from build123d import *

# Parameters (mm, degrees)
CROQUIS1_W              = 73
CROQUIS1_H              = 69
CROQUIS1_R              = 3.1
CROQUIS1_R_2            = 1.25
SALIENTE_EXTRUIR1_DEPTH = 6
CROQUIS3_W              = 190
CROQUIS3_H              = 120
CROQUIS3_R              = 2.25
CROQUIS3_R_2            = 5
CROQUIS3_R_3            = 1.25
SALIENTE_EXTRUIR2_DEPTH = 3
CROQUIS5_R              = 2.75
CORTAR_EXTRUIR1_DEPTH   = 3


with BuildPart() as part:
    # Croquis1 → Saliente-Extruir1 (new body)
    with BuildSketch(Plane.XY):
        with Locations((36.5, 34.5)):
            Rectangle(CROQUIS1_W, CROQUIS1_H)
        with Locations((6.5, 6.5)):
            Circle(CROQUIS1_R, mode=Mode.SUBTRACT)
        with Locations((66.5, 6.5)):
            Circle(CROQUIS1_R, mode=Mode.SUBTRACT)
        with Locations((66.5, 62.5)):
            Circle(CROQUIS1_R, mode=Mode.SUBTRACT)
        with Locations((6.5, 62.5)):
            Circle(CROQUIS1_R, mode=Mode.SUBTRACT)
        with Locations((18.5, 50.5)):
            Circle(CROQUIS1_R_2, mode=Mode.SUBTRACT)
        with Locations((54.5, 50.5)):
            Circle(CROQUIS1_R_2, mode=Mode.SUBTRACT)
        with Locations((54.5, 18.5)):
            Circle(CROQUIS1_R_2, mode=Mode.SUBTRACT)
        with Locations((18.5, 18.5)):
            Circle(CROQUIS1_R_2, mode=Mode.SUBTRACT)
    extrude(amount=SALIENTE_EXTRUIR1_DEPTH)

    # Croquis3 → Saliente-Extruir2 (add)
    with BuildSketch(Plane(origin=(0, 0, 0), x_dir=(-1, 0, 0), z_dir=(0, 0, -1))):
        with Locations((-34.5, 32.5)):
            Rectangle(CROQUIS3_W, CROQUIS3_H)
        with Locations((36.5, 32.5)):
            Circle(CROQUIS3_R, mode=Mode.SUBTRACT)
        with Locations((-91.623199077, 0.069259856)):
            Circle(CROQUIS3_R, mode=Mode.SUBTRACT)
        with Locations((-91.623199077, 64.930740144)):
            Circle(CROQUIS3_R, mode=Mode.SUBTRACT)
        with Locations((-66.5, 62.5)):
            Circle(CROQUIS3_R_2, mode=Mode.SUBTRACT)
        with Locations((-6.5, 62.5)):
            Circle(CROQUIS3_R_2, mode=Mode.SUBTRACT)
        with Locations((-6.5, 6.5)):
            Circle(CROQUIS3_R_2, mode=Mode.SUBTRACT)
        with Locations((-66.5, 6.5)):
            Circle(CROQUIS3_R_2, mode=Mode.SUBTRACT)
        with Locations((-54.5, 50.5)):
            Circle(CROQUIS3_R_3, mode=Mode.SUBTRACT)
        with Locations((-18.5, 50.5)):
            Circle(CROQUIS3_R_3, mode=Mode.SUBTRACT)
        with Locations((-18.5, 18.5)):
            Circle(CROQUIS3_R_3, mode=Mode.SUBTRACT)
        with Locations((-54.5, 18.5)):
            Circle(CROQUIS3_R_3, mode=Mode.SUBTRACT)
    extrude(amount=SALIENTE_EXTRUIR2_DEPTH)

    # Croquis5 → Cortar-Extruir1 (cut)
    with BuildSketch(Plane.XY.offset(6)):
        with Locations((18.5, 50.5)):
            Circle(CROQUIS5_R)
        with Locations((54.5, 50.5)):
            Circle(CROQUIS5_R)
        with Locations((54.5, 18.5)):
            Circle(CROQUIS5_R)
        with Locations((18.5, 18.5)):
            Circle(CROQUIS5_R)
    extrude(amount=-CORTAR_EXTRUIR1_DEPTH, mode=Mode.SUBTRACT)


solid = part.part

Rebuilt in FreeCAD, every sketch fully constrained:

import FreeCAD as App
import Part
import Sketcher


def add_polygon(sketch, points):
    """Adds a closed chain of lines whose ends are joined by coincident constraints."""
    first, n = sketch.GeometryCount, len(points)
    for a, b in zip(points, points[1:] + points[:1]):
        sketch.addGeometry(Part.LineSegment(App.Vector(*a, 0), App.Vector(*b, 0)), False)
    for i in range(n):
        sketch.addConstraint(Sketcher.Constraint("Coincident", first + i, 2, first + (i + 1) % n, 1))

doc = App.newDocument("Part")
body = doc.addObject("PartDesign::Body", "Body")

# Sketch on XY plane
sketch1 = body.newObject("Sketcher::SketchObject", "Sketch")
sketch1.AttachmentSupport = (doc.getObject("XY_Plane"), [""])
sketch1.MapMode = "FlatFace"
add_polygon(sketch1, [(0, 69), (0, 0), (73, 0), (73, 69)])  # lines 0-3
sketch1.addGeometry(Part.Circle(App.Vector(6.5, 6.5, 0), App.Vector(0, 0, 1), 3.1), False)  # 4
sketch1.addGeometry(Part.Circle(App.Vector(18.5, 18.5, 0), App.Vector(0, 0, 1), 1.2), False)  # 5
sketch1.addGeometry(Part.Circle(App.Vector(66.5, 6.5, 0), App.Vector(0, 0, 1), 3.1), False)  # 6
sketch1.addGeometry(Part.Circle(App.Vector(54.5, 18.5, 0), App.Vector(0, 0, 1), 1.2), False)  # 7
sketch1.addGeometry(Part.Circle(App.Vector(18.5, 50.5, 0), App.Vector(0, 0, 1), 1.2), False)  # 8
sketch1.addGeometry(Part.Circle(App.Vector(6.5, 62.5, 0), App.Vector(0, 0, 1), 3.1), False)  # 9
sketch1.addGeometry(Part.Circle(App.Vector(54.5, 50.5, 0), App.Vector(0, 0, 1), 1.2), False)  # 10
sketch1.addGeometry(Part.Circle(App.Vector(66.5, 62.5, 0), App.Vector(0, 0, 1), 3.1), False)  # 11
sketch1.addConstraint(Sketcher.Constraint("Vertical", 0))
sketch1.addConstraint(Sketcher.Constraint("Horizontal", 1))
sketch1.addConstraint(Sketcher.Constraint("Vertical", 2))
sketch1.addConstraint(Sketcher.Constraint("Horizontal", 3))
sketch1.addConstraint(Sketcher.Constraint("Coincident", 0, 2, -1, 1))
sketch1.addConstraint(Sketcher.Constraint("Equal", 4, 6))
sketch1.addConstraint(Sketcher.Constraint("Equal", 5, 7))
sketch1.addConstraint(Sketcher.Constraint("Equal", 7, 8))
sketch1.addConstraint(Sketcher.Constraint("Equal", 6, 9))
sketch1.addConstraint(Sketcher.Constraint("Equal", 8, 10))
sketch1.addConstraint(Sketcher.Constraint("Equal", 9, 11))
sketch1.addConstraint(Sketcher.Constraint("Horizontal", 4, 3, 6, 3))
sketch1.addConstraint(Sketcher.Constraint("Horizontal", 5, 3, 7, 3))
sketch1.addConstraint(Sketcher.Constraint("Horizontal", 8, 3, 10, 3))
sketch1.addConstraint(Sketcher.Constraint("Horizontal", 9, 3, 11, 3))
sketch1.addConstraint(Sketcher.Constraint("Vertical", 5, 3, 8, 3))
sketch1.addConstraint(Sketcher.Constraint("Vertical", 4, 3, 9, 3))
sketch1.addConstraint(Sketcher.Constraint("Vertical", 7, 3, 10, 3))
sketch1.addConstraint(Sketcher.Constraint("Vertical", 6, 3, 11, 3))
sketch1.addConstraint(Sketcher.Constraint("Diameter", 4, 6.2))
sketch1.addConstraint(Sketcher.Constraint("Diameter", 5, 2.5))
sketch1.addConstraint(Sketcher.Constraint("DistanceX", 1, 1, 1, 2, 73.0))
sketch1.addConstraint(Sketcher.Constraint("DistanceY", 0, 2, 0, 1, 69.0))
sketch1.addConstraint(Sketcher.Constraint("DistanceX", 4, 3, 5, 3, 12.0))
sketch1.addConstraint(Sketcher.Constraint("DistanceY", 4, 3, 5, 3, 12.0))
sketch1.addConstraint(Sketcher.Constraint("DistanceX", 5, 3, 6, 3, 48.0))
sketch1.addConstraint(Sketcher.Constraint("DistanceX", 7, 3, 6, 3, 12.0))
sketch1.addConstraint(Sketcher.Constraint("DistanceY", 5, 3, 8, 3, 32.0))
sketch1.addConstraint(Sketcher.Constraint("DistanceY", 8, 3, 9, 3, 12.0))
sketch1.addConstraint(Sketcher.Constraint("DistanceX", -1, 1, 4, 3, 6.5))
sketch1.addConstraint(Sketcher.Constraint("DistanceY", -1, 1, 4, 3, 6.5))
pad1 = body.newObject("PartDesign::Pad", "Pad")
pad1.Profile = sketch1
pad1.Length = 6

# Sketch on XY plane
sketch2 = body.newObject("Sketcher::SketchObject", "Sketch001")
sketch2.AttachmentSupport = (doc.getObject("XY_Plane"), [""])
sketch2.MapMode = "FlatFace"
add_polygon(sketch2, [(129.5, 92.5), (129.5, -27.5), (-60.5, -27.5), (-60.5, 92.5)])  # lines 0-3
sketch2.addGeometry(Part.Circle(App.Vector(91.6, 0.1, 0), App.Vector(0, 0, 1), 2.2), False)  # 4
sketch2.addGeometry(Part.Circle(App.Vector(66.5, 6.5, 0), App.Vector(0, 0, 1), 5), False)  # 5
sketch2.addGeometry(Part.Circle(App.Vector(54.5, 18.5, 0), App.Vector(0, 0, 1), 1.2), False)  # 6
sketch2.addGeometry(Part.Circle(App.Vector(6.5, 6.5, 0), App.Vector(0, 0, 1), 5), False)  # 7
sketch2.addGeometry(Part.Circle(App.Vector(18.5, 18.5, 0), App.Vector(0, 0, 1), 1.2), False)  # 8
sketch2.addGeometry(Part.Circle(App.Vector(-36.5, 32.5, 0), App.Vector(0, 0, 1), 2.2), False)  # 9
sketch2.addGeometry(Part.Circle(App.Vector(91.6, 64.9, 0), App.Vector(0, 0, 1), 2.2), False)  # 10
sketch2.addGeometry(Part.Circle(App.Vector(66.5, 62.5, 0), App.Vector(0, 0, 1), 5), False)  # 11
sketch2.addGeometry(Part.Circle(App.Vector(54.5, 50.5, 0), App.Vector(0, 0, 1), 1.2), False)  # 12
sketch2.addGeometry(Part.Circle(App.Vector(18.5, 50.5, 0), App.Vector(0, 0, 1), 1.2), False)  # 13
sketch2.addGeometry(Part.Circle(App.Vector(6.5, 62.5, 0), App.Vector(0, 0, 1), 5), False)  # 14
sketch2.addConstraint(Sketcher.Constraint("Vertical", 0))
sketch2.addConstraint(Sketcher.Constraint("Horizontal", 1))
sketch2.addConstraint(Sketcher.Constraint("Vertical", 2))
sketch2.addConstraint(Sketcher.Constraint("Horizontal", 3))
sketch2.addConstraint(Sketcher.Constraint("Equal", 5, 7))
sketch2.addConstraint(Sketcher.Constraint("Equal", 6, 8))
sketch2.addConstraint(Sketcher.Constraint("Equal", 4, 9))
sketch2.addConstraint(Sketcher.Constraint("Equal", 9, 10))
sketch2.addConstraint(Sketcher.Constraint("Equal", 7, 11))
sketch2.addConstraint(Sketcher.Constraint("Equal", 8, 12))
sketch2.addConstraint(Sketcher.Constraint("Equal", 12, 13))
sketch2.addConstraint(Sketcher.Constraint("Equal", 11, 14))
sketch2.addConstraint(Sketcher.Constraint("Horizontal", 5, 3, 7, 3))
sketch2.addConstraint(Sketcher.Constraint("Horizontal", 6, 3, 8, 3))
sketch2.addConstraint(Sketcher.Constraint("Horizontal", 12, 3, 13, 3))
sketch2.addConstraint(Sketcher.Constraint("Horizontal", 11, 3, 14, 3))
sketch2.addConstraint(Sketcher.Constraint("Vertical", 4, 3, 10, 3))
sketch2.addConstraint(Sketcher.Constraint("Vertical", 5, 3, 11, 3))
sketch2.addConstraint(Sketcher.Constraint("Vertical", 6, 3, 12, 3))
sketch2.addConstraint(Sketcher.Constraint("Vertical", 8, 3, 13, 3))
sketch2.addConstraint(Sketcher.Constraint("Vertical", 7, 3, 14, 3))
sketch2.addConstraint(Sketcher.Constraint("Diameter", 5, 10.0))
sketch2.addConstraint(Sketcher.Constraint("Diameter", 4, 4.5))
sketch2.addConstraint(Sketcher.Constraint("Diameter", 6, 2.5))
sketch2.addConstraint(Sketcher.Constraint("DistanceX", 1, 2, 1, 1, 190.0))
sketch2.addConstraint(Sketcher.Constraint("DistanceY", 0, 2, 0, 1, 120.0))
sketch2.addConstraint(Sketcher.Constraint("DistanceX", 6, 3, 5, 3, 12.0))
sketch2.addConstraint(Sketcher.Constraint("DistanceY", 5, 3, 6, 3, 12.0))
sketch2.addConstraint(Sketcher.Constraint("DistanceX", 7, 3, 6, 3, 48.0))
sketch2.addConstraint(Sketcher.Constraint("DistanceX", 7, 3, 8, 3, 12.0))
sketch2.addConstraint(Sketcher.Constraint("DistanceX", 9, 3, 7, 3, 43.0))
sketch2.addConstraint(Sketcher.Constraint("DistanceY", 7, 3, 9, 3, 26.0))
sketch2.addConstraint(Sketcher.Constraint("DistanceY", 6, 3, 11, 3, 44.0))
sketch2.addConstraint(Sketcher.Constraint("DistanceY", 12, 3, 11, 3, 12.0))
sketch2.addConstraint(Sketcher.Constraint("DistanceX", 5, 3, 0, 2, 63.0))
sketch2.addConstraint(Sketcher.Constraint("DistanceY", 0, 2, 5, 3, 34.0))
sketch2.addConstraint(Sketcher.Constraint("DistanceX", -1, 1, 5, 3, 66.5))
sketch2.addConstraint(Sketcher.Constraint("DistanceY", -1, 1, 5, 3, 6.5))
sketch2.addConstraint(Sketcher.Constraint("DistanceX", -1, 1, 4, 3, 91.623199))
sketch2.addConstraint(Sketcher.Constraint("DistanceY", -1, 1, 4, 3, 0.06926))
sketch2.addConstraint(Sketcher.Constraint("DistanceY", -1, 1, 10, 3, 64.93074))
pad2 = body.newObject("PartDesign::Pad", "Pad001")
pad2.Profile = sketch2
pad2.Length = 3
pad2.Reversed = True

# Sketch on XY plane
sketch3 = body.newObject("Sketcher::SketchObject", "Sketch002")
sketch3.AttachmentSupport = (doc.getObject("XY_Plane"), [""])
sketch3.MapMode = "FlatFace"
sketch3.AttachmentOffset = App.Placement(App.Vector(0, 0, 6), App.Rotation())
sketch3.addGeometry(Part.Circle(App.Vector(18.5, 50.5, 0), App.Vector(0, 0, 1), 2.8), False)
sketch3.addGeometry(Part.Circle(App.Vector(54.5, 50.5, 0), App.Vector(0, 0, 1), 2.8), False)
sketch3.addGeometry(Part.Circle(App.Vector(54.5, 18.5, 0), App.Vector(0, 0, 1), 2.8), False)
sketch3.addGeometry(Part.Circle(App.Vector(18.5, 18.5, 0), App.Vector(0, 0, 1), 2.8), False)
sketch3.addConstraint(Sketcher.Constraint("Equal", 0, 1))
sketch3.addConstraint(Sketcher.Constraint("Equal", 1, 2))
sketch3.addConstraint(Sketcher.Constraint("Equal", 2, 3))
sketch3.addConstraint(Sketcher.Constraint("Horizontal", 0, 3, 1, 3))
sketch3.addConstraint(Sketcher.Constraint("Horizontal", 2, 3, 3, 3))
sketch3.addConstraint(Sketcher.Constraint("Vertical", 1, 3, 2, 3))
sketch3.addConstraint(Sketcher.Constraint("Vertical", 0, 3, 3, 3))
sketch3.addConstraint(Sketcher.Constraint("Diameter", 0, 5.5))
sketch3.addConstraint(Sketcher.Constraint("DistanceX", 0, 3, 1, 3, 36.0))
sketch3.addConstraint(Sketcher.Constraint("DistanceY", 2, 3, 1, 3, 32.0))
sketch3.addConstraint(Sketcher.Constraint("DistanceX", -1, 1, 0, 3, 18.5))
sketch3.addConstraint(Sketcher.Constraint("DistanceY", -1, 1, 0, 3, 50.5))
pocket1 = body.newObject("PartDesign::Pocket", "Pocket")
pocket1.Profile = sketch3
pocket1.Length = 3

doc.recompute()
